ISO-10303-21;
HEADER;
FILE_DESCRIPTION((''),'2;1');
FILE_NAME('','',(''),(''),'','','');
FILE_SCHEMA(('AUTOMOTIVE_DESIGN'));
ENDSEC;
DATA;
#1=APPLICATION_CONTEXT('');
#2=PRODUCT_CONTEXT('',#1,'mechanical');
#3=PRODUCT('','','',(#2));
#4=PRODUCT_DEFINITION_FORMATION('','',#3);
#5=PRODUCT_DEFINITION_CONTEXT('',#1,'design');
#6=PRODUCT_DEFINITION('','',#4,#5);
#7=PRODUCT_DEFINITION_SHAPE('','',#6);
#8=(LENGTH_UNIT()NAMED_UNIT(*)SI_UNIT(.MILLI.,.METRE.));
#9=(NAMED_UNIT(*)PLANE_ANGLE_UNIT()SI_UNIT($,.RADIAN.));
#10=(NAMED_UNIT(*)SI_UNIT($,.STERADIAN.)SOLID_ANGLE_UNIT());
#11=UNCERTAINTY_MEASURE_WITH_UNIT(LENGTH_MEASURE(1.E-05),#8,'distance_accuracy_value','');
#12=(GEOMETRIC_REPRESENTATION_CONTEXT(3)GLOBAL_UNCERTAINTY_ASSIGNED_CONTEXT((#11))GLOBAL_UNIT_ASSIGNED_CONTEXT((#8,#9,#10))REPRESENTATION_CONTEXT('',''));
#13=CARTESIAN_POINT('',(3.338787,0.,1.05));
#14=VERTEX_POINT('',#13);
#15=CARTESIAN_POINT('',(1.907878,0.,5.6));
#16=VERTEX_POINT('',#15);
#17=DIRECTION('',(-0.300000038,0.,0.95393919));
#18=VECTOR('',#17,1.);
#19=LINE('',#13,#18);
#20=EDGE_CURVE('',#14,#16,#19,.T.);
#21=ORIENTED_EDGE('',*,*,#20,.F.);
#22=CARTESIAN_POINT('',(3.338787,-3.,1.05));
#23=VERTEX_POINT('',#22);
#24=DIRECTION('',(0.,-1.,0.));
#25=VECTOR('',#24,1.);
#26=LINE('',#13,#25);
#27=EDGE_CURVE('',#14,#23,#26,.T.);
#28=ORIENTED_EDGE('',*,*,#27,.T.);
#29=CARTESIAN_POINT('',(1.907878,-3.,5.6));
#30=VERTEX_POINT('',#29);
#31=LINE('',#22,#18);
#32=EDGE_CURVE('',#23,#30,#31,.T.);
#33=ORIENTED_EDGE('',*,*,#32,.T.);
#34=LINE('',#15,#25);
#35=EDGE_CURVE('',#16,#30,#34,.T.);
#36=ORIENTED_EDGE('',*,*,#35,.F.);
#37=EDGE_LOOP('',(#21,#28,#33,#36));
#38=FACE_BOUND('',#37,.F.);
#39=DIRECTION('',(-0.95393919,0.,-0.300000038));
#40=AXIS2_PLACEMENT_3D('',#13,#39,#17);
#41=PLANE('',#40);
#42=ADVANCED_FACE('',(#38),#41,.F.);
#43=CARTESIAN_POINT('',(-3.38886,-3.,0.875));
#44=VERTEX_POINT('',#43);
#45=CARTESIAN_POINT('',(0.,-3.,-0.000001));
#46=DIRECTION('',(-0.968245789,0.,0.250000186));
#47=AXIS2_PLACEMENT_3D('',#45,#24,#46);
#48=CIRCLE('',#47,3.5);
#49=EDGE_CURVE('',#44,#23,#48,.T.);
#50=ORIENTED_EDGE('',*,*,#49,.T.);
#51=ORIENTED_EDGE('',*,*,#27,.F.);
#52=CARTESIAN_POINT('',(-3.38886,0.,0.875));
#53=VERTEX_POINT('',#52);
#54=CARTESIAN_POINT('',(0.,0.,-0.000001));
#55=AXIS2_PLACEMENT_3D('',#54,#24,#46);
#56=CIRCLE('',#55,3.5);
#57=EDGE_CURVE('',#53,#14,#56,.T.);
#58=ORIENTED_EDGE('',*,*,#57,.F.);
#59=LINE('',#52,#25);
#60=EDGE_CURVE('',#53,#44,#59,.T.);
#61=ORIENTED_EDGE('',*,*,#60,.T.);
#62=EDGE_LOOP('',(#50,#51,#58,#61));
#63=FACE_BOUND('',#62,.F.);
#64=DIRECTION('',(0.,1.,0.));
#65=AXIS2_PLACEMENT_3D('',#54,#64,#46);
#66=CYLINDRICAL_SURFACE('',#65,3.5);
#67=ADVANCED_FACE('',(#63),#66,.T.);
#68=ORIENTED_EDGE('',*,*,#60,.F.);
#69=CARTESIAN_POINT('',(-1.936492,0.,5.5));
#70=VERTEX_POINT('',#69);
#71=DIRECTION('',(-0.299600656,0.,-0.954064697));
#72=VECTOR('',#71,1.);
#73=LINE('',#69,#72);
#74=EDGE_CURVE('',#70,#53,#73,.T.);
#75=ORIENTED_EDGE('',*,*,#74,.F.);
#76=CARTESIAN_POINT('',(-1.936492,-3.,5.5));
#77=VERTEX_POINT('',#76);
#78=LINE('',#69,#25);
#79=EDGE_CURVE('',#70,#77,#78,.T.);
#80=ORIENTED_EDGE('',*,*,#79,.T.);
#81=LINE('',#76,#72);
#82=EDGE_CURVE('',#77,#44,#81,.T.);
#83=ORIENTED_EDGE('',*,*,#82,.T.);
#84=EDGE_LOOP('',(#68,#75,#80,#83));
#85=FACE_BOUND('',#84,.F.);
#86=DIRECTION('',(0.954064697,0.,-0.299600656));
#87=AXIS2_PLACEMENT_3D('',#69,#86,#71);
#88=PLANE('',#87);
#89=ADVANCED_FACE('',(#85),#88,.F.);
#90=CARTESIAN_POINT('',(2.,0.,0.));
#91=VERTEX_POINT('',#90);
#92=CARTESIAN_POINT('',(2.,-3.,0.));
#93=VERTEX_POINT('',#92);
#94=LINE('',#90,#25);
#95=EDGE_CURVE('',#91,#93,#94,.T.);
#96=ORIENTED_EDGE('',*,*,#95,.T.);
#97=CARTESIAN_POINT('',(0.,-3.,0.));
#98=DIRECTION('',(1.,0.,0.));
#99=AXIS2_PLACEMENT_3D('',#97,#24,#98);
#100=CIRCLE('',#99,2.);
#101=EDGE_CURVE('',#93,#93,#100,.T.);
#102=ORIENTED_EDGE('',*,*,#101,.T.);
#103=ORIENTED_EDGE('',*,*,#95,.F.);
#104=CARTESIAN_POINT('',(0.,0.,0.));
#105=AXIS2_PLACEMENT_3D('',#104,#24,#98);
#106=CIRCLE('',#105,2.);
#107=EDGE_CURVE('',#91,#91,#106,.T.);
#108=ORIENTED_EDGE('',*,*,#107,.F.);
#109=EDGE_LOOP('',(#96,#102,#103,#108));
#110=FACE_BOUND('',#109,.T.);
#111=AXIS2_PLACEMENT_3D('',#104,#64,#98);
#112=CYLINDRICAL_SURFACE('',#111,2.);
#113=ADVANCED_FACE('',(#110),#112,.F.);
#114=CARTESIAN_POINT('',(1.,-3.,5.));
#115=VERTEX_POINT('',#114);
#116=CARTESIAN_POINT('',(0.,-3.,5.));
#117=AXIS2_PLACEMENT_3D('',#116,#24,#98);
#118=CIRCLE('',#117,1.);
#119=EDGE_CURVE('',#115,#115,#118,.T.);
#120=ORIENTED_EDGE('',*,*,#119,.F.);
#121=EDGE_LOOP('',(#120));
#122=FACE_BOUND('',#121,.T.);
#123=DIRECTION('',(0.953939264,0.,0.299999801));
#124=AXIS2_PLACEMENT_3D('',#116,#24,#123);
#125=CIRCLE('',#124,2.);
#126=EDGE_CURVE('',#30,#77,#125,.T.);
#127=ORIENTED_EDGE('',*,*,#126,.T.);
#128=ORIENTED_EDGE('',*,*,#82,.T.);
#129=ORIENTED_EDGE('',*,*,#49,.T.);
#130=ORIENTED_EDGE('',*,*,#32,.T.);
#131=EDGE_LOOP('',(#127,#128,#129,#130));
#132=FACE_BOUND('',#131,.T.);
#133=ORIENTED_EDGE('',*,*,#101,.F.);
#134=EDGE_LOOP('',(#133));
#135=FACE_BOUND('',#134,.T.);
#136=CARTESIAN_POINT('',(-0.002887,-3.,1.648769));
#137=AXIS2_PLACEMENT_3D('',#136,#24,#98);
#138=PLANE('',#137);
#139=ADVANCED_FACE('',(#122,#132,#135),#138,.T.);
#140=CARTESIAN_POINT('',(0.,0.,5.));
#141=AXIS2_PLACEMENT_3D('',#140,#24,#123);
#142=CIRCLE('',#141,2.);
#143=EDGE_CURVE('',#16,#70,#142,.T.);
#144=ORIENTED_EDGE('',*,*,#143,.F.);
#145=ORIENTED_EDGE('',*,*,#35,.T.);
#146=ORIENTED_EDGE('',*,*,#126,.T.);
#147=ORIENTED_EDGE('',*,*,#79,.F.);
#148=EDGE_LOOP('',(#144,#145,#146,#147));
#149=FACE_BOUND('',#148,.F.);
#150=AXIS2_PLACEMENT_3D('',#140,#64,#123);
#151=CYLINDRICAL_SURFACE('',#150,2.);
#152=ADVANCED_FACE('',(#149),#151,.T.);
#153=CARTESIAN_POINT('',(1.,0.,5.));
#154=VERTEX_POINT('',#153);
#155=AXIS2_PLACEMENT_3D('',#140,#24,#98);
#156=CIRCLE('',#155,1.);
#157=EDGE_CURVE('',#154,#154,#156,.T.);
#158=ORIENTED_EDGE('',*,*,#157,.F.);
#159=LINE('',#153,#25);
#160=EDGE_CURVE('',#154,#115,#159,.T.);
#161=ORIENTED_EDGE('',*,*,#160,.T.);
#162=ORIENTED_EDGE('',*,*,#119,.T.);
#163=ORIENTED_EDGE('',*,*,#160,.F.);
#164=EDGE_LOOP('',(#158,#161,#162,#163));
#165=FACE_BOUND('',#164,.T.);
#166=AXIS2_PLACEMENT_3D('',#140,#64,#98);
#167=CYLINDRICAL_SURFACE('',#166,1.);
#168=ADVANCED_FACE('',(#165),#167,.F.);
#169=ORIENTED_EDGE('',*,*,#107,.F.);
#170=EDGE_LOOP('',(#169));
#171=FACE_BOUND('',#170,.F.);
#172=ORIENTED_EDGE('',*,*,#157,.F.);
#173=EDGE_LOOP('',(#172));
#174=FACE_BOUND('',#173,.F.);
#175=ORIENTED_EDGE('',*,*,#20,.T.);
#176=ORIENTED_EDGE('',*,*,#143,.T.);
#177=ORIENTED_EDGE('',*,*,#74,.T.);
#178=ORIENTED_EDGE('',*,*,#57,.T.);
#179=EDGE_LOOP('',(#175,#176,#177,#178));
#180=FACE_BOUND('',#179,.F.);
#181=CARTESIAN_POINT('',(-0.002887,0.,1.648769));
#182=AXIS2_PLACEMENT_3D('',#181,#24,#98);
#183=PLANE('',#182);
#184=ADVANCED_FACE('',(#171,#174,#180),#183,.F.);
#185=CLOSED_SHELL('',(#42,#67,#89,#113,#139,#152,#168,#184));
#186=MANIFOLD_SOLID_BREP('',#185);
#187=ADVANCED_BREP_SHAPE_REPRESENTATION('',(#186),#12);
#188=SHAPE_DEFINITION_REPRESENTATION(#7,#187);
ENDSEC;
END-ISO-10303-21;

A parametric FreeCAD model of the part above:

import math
import FreeCAD as App
import Part
import Sketcher

V = App.Vector

doc = App.newDocument("Part")
body = doc.addObject("PartDesign::Body", "Body")

sketch1 = body.newObject("Sketcher::SketchObject", "Sketch")
sketch1.AttachmentSupport = (doc.getObject("XZ_Plane"), [""])
sketch1.MapMode = "FlatFace"
sketch1.addGeometry([
    Part.LineSegment(V(3.338787, 1.05, 0), V(1.907878, 5.6, 0)),
    Part.ArcOfCircle(Part.Circle(V(0, 5, 0), V(0, 0, 1), 2), math.radians(17.457591), math.radians(165.5225)),
    Part.LineSegment(V(-1.936492, 5.5, 0), V(-3.38886, 0.875, 0)),
    Part.ArcOfCircle(Part.Circle(V(0, -0.000001, 0), V(0, 0, 1), 3.5), math.radians(165.522477), math.radians(377.457614)),
    Part.Circle(V(0, 0, 0), V(0, 0, 1), 2),
    Part.Circle(V(0, 5, 0), V(0, 0, 1), 1),
], False)
sketch1.addConstraint([
    Sketcher.Constraint("Tangent", 0, 2, 1, 1),
    Sketcher.Constraint("Coincident", 1, 2, 2, 1),
    Sketcher.Constraint("Coincident", 2, 2, 3, 1),
    Sketcher.Constraint("Tangent", 3, 2, 0, 1),
    Sketcher.Constraint("Coincident", 3, 3, -1, 1),
    Sketcher.Constraint("Coincident", 4, 3, -1, 1),
    Sketcher.Constraint("Coincident", 5, 3, 1, 3),
    Sketcher.Constraint("Equal", 1, 4),
    Sketcher.Constraint("PointOnObject", 1, 3, -2),
    Sketcher.Constraint("Diameter", 4, 4.0),
    Sketcher.Constraint("Diameter", 5, 2.0),
    Sketcher.Constraint("Radius", 3, 3.5),
    Sketcher.Constraint("DistanceY", -1, 1, 1, 3, 5.0),
    Sketcher.Constraint("DistanceY", -1, 1, 1, 2, 5.5),
    Sketcher.Constraint("DistanceY", -1, 1, 2, 2, 0.875),
])
pad1 = body.newObject("PartDesign::Pad", "Pad")
pad1.Profile = sketch1
pad1.Length = 3

doc.recompute()
